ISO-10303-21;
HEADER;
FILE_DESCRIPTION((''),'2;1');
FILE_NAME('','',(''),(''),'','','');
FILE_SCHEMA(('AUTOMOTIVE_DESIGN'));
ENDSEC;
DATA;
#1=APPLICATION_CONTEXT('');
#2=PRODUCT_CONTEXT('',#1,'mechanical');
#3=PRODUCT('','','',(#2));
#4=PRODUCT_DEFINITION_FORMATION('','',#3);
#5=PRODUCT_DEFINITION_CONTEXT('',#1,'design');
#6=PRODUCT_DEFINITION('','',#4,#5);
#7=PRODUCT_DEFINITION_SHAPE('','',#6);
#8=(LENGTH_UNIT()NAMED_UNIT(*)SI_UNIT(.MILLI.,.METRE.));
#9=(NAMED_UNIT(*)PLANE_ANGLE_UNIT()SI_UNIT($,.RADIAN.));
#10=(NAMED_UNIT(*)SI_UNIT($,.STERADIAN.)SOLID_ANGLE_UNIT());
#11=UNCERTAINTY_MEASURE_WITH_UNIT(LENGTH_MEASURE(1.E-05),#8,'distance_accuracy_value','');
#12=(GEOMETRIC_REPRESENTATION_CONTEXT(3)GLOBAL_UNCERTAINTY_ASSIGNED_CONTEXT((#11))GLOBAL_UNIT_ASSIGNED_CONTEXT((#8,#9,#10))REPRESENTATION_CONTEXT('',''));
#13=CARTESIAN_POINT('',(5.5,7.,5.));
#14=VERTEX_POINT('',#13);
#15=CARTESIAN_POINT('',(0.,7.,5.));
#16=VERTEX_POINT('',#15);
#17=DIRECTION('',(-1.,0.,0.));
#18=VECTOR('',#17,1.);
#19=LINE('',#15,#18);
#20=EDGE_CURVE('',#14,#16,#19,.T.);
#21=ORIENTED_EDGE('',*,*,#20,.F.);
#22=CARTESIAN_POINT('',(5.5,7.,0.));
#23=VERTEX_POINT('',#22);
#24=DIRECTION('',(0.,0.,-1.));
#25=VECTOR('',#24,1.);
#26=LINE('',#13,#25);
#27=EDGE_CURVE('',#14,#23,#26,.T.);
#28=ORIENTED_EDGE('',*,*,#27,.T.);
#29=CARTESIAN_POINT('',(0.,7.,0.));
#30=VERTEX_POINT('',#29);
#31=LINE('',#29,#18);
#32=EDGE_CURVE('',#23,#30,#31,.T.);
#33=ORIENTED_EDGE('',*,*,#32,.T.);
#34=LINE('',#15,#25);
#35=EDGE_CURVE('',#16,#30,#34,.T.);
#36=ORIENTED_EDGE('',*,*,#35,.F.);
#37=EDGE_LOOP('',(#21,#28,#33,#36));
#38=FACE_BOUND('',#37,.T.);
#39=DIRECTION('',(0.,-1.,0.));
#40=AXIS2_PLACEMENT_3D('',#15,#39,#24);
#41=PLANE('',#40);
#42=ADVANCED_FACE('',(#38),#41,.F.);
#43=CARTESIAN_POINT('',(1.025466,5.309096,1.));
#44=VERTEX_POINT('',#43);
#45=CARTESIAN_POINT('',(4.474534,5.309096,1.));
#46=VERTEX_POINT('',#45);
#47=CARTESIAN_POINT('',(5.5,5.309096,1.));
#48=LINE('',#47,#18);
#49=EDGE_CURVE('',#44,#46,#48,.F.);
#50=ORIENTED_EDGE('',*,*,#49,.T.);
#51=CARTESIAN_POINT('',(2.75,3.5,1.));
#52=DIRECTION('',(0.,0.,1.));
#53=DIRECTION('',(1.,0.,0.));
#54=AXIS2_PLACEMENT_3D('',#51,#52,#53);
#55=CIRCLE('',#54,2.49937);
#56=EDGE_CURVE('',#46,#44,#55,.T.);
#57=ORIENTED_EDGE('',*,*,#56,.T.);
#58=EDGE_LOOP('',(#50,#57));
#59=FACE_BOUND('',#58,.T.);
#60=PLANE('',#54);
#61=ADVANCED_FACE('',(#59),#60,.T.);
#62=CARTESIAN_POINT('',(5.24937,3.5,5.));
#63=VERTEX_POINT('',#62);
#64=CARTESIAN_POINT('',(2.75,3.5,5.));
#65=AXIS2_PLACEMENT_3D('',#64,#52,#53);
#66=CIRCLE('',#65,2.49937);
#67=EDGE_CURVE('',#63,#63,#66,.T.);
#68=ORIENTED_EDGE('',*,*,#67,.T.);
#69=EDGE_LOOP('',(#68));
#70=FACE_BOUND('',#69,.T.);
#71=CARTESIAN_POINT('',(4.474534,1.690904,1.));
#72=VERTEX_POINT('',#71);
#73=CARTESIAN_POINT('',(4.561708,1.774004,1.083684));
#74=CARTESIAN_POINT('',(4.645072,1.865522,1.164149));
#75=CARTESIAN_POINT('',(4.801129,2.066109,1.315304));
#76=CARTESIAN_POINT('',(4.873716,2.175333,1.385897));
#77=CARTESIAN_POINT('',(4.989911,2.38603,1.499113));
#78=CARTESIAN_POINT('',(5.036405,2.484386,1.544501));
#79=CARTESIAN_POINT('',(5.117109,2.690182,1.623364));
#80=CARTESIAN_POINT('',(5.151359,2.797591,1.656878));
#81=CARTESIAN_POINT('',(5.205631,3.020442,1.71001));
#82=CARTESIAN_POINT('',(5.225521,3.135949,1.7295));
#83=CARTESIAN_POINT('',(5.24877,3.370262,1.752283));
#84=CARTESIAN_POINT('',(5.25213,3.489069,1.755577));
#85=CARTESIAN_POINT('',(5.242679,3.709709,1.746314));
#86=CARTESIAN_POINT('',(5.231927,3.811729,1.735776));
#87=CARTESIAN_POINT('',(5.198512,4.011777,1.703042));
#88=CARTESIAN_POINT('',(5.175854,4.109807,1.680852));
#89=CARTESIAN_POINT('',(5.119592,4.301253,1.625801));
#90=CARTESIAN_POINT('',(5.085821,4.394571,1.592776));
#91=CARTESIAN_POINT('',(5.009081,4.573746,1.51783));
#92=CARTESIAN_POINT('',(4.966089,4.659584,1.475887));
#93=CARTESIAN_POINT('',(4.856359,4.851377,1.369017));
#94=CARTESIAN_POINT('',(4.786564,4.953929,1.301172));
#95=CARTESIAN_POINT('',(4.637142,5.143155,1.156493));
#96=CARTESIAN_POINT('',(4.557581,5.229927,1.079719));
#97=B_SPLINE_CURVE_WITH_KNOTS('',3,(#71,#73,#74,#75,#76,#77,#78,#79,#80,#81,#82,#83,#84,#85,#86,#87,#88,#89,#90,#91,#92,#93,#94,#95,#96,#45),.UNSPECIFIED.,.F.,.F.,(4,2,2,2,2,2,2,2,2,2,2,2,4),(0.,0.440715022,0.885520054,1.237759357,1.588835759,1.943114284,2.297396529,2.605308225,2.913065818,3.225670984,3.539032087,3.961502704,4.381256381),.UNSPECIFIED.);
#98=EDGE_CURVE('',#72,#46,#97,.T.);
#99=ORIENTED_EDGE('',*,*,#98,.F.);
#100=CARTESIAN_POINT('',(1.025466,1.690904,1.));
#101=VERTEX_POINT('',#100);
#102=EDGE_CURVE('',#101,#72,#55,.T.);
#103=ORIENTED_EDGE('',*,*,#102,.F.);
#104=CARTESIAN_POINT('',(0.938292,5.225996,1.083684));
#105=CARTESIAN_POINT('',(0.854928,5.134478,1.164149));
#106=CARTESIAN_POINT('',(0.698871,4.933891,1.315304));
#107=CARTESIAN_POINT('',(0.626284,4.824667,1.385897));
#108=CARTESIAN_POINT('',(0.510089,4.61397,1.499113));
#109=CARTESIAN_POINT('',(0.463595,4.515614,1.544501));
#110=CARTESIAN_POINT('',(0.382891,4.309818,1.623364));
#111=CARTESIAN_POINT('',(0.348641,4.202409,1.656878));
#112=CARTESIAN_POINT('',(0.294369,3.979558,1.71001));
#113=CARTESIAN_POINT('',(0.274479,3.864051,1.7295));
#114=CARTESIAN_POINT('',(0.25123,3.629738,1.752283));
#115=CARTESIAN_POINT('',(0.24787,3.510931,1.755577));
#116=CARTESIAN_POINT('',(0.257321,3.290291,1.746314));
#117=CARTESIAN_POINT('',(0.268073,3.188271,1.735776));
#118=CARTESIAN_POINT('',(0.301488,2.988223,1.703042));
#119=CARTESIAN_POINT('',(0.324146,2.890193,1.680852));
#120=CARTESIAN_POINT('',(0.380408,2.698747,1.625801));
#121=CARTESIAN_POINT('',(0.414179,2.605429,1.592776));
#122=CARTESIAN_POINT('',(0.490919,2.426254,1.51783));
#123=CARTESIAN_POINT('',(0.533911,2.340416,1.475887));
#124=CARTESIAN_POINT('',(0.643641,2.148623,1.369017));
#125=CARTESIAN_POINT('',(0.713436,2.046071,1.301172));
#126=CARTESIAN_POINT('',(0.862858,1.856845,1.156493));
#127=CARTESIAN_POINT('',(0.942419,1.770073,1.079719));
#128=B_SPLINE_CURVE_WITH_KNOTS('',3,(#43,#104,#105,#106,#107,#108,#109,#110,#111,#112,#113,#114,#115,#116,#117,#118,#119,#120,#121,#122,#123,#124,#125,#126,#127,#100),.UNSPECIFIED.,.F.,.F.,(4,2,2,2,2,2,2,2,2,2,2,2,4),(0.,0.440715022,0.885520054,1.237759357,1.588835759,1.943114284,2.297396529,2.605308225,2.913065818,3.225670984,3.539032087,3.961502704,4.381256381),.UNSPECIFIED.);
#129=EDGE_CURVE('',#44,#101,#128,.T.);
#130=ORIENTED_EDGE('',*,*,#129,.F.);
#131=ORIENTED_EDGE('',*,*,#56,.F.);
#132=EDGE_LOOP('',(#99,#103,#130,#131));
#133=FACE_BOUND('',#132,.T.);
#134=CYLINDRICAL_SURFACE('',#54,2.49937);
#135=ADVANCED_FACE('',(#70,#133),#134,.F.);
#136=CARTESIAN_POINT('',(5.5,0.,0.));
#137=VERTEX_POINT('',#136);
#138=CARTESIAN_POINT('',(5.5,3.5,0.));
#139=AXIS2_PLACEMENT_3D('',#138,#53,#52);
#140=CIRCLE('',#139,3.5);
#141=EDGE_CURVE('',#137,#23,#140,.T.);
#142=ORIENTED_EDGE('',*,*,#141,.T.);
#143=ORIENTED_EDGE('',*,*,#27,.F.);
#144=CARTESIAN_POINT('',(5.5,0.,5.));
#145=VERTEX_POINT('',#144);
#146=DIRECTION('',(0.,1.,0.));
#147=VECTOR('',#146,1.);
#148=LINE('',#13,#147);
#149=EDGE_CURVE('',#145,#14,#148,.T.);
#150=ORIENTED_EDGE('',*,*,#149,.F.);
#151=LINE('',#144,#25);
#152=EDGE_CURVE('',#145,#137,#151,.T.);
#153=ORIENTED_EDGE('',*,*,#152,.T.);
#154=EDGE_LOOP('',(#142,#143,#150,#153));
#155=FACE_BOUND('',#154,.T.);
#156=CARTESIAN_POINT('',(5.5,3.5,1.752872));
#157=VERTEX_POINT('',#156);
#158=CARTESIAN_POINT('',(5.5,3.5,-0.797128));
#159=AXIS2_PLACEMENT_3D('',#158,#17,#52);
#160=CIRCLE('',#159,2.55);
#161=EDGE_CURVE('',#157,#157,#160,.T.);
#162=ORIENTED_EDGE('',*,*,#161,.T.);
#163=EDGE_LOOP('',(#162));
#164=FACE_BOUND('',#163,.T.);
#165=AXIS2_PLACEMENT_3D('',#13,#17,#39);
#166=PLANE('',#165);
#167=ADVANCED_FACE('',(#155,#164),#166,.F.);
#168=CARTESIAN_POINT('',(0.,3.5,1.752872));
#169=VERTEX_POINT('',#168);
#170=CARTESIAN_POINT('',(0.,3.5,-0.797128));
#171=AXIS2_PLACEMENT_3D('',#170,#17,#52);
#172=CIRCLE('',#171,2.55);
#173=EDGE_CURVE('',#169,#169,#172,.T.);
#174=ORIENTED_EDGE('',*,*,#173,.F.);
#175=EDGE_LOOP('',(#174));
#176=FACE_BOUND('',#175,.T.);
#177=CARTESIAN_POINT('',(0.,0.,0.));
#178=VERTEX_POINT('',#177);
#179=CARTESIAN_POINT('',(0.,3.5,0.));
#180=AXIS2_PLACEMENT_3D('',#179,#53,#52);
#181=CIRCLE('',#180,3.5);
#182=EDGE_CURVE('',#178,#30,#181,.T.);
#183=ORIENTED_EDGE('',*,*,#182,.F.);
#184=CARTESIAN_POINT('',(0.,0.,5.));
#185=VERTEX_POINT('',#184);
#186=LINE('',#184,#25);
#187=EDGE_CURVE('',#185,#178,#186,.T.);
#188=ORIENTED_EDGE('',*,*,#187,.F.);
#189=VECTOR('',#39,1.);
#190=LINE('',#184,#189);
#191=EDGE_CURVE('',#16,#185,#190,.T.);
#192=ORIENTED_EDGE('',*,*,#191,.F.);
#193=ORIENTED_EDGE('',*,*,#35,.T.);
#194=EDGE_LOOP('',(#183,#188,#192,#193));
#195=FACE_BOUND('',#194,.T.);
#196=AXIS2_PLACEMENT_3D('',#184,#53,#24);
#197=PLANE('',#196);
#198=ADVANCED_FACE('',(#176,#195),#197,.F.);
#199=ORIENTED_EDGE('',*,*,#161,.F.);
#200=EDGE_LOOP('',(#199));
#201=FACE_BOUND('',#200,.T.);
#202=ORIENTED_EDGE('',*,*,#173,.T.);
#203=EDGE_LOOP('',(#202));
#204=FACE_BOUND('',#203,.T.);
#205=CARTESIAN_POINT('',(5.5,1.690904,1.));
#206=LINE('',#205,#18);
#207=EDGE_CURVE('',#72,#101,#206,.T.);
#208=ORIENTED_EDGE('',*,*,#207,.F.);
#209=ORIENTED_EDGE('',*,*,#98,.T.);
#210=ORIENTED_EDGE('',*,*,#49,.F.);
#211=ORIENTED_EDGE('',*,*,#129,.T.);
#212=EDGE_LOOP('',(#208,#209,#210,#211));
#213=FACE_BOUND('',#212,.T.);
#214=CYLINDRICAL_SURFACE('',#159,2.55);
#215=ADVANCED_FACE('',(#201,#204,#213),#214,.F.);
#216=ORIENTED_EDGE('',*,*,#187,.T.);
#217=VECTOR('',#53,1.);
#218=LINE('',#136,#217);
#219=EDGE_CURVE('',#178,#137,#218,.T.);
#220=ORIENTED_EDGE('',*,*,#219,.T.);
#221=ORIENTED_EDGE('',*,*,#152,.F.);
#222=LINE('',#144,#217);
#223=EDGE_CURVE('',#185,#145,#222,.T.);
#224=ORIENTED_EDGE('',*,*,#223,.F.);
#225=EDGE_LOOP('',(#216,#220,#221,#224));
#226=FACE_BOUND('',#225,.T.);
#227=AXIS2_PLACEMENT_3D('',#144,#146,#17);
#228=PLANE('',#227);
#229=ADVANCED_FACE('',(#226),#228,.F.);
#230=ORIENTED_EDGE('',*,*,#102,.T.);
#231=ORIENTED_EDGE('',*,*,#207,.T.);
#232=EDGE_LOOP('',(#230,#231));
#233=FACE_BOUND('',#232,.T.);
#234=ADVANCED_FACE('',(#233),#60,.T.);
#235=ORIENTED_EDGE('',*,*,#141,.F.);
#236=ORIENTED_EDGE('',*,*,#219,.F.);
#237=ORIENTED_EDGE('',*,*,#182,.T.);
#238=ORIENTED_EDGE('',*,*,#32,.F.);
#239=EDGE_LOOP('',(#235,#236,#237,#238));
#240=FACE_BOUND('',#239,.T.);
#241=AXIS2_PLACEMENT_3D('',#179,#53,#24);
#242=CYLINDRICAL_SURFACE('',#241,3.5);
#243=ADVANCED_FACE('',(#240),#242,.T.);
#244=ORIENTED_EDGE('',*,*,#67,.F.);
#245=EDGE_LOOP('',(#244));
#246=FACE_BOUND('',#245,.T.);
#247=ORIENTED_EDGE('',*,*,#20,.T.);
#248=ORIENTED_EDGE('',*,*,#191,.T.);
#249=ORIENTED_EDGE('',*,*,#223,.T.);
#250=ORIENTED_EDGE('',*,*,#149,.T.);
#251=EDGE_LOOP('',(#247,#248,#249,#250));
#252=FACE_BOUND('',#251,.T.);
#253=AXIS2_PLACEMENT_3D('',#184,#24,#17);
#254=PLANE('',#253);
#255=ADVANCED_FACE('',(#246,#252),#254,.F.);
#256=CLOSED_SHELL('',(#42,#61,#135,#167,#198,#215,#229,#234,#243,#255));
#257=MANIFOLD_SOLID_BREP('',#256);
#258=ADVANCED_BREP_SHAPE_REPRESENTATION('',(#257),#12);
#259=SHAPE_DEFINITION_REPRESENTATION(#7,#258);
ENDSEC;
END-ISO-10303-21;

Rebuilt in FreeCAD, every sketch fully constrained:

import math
import FreeCAD as App
import Part
import Sketcher
Q = App.Units.Quantity

doc = App.newDocument("Part")
body = doc.addObject("PartDesign::Body", "Body")

sketch1 = body.newObject("Sketcher::SketchObject", "Sketch")
sketch1.AttachmentSupport = (doc.getObject("XY_Plane"), [""])
sketch1.MapMode = "FlatFace"
sketch1.addGeometry([
    Part.LineSegment(App.Vector(0, 7, 0), App.Vector(0, 0, 0)),
    Part.LineSegment(App.Vector(0, 0, 0), App.Vector(6, 0, 0)),
    Part.LineSegment(App.Vector(6, 0, 0), App.Vector(6, 7, 0)),
    Part.LineSegment(App.Vector(6, 7, 0), App.Vector(0, 7, 0)),
], False)
sketch1.addConstraint([
    Sketcher.Constraint("Coincident", 0, 2, 1, 1),
    Sketcher.Constraint("Coincident", 1, 2, 2, 1),
    Sketcher.Constraint("Coincident", 2, 2, 3, 1),
    Sketcher.Constraint("Coincident", 3, 2, 0, 1),
    Sketcher.Constraint("Vertical", 0),
    Sketcher.Constraint("Horizontal", 1),
    Sketcher.Constraint("Vertical", 2),
    Sketcher.Constraint("Horizontal", 3),
    Sketcher.Constraint("Coincident", 0, 2, -1, 1),
    Sketcher.Constraint("DistanceY", 0, 2, 0, 1, Q("7 mm")),
    Sketcher.Constraint("DistanceX", 1, 1, 1, 2, Q("5.5 mm")),
])
pad1 = body.newObject("PartDesign::Pad", "Pad")
pad1.Profile = sketch1
pad1.Length = 5

sketch2 = body.newObject("Sketcher::SketchObject", "Sketch001")
sketch2.AttachmentSupport = (doc.getObject("YZ_Plane"), [""])
sketch2.MapMode = "FlatFace"
sketch2.AttachmentOffset = App.Placement(App.Vector(0, 0, 5.5), App.Rotation())
sketch2.addGeometry([
    Part.LineSegment(App.Vector(7, 0, 0), App.Vector(0, 0, 0)),
    Part.ArcOfCircle(Part.Circle(App.Vector(3.5, 0, 0), App.Vector(0, 0, 1), 3.5), math.radians(180), math.radians(360)),
], False)
sketch2.addConstraint([
    Sketcher.Constraint("Coincident", 0, 1, 1, 2),
    Sketcher.Constraint("Coincident", 1, 1, 0, 2),
    Sketcher.Constraint("Horizontal", 0),
    Sketcher.Constraint("Coincident", 1, 1, -1, 1),
    Sketcher.Constraint("PointOnObject", 1, 3, -1),
    Sketcher.Constraint("Radius", 1, Q("3.5 mm")),
])
pad2 = body.newObject("PartDesign::Pad", "Pad001")
pad2.Profile = sketch2
pad2.Length = 5.5
pad2.Reversed = True

sketch3 = body.newObject("Sketcher::SketchObject", "Sketch002")
sketch3.AttachmentSupport = (doc.getObject("YZ_Plane"), [""])
sketch3.MapMode = "FlatFace"
sketch3.addGeometry(Part.Circle(App.Vector(3.5, -0.8, 0), App.Vector(0, 0, 1), 2.5), False)
sketch3.addConstraint([
    Sketcher.Constraint("Diameter", 0, Q("5.1 mm")),
    Sketcher.Constraint("DistanceX", -1, 1, 0, 3, Q("3.5 mm")),
    Sketcher.Constraint("DistanceY", 0, 3, -1, 1, Q("0.797128 mm")),
])
pocket1 = body.newObject("PartDesign::Pocket", "Pocket")
pocket1.Profile = sketch3
pocket1.Type = "ThroughAll"
pocket1.Reversed = True

sketch4 = body.newObject("Sketcher::SketchObject", "Sketch003")
sketch4.AttachmentSupport = (doc.getObject("XY_Plane"), [""])
sketch4.MapMode = "FlatFace"
sketch4.AttachmentOffset = App.Placement(App.Vector(0, 0, 5), App.Rotation())
sketch4.addGeometry(Part.Circle(App.Vector(2.8, 3.5, 0), App.Vector(0, 0, 1), 2.5), False)
sketch4.addConstraint([
    Sketcher.Constraint("DistanceY", -1, 1, 0, 3, Q("3.5 mm")),
    Sketcher.Constraint("Diameter", 0, Q("4.998739 mm")),
    Sketcher.Constraint("DistanceX", -1, 1, 0, 3, Q("2.75 mm")),
])
pocket2 = body.newObject("PartDesign::Pocket", "Pocket001")
pocket2.Profile = sketch4
pocket2.Length = 4

doc.recompute()
